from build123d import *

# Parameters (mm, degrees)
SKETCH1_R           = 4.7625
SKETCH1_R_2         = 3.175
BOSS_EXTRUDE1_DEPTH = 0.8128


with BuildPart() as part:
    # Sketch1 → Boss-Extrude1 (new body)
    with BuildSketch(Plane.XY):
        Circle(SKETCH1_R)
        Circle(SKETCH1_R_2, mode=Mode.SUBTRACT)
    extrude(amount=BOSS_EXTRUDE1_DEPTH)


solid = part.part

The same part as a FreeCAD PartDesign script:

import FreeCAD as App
import Part
import Sketcher
from FreeCAD import Vector
Q = App.Units.Quantity

doc = App.newDocument("Part")
body = doc.addObject("PartDesign::Body", "Body")

sketch1 = body.newObject("Sketcher::SketchObject", "Sketch")
sketch1.AttachmentSupport = (doc.getObject("XY_Plane"), [""])
sketch1.MapMode = "FlatFace"
sketch1.addGeometry([
    Part.Circle(Vector(0, 0, 0), Vector(0, 0, 1), 4.8),
    Part.Circle(Vector(0, 0, 0), Vector(0, 0, 1), 3.2),
], False)
sketch1.addConstraint([
    Sketcher.Constraint("Coincident", 0, 3, -1, 1),
    Sketcher.Constraint("Coincident", 1, 3, -1, 1),
    Sketcher.Constraint("Diameter", 1, Q("0.25 in")),
    Sketcher.Constraint("Diameter", 0, Q("0.375 in")),
])
pad1 = body.newObject("PartDesign::Pad", "Pad")
pad1.Profile = sketch1
pad1.Length = Q("0.032 in")

doc.recompute()
